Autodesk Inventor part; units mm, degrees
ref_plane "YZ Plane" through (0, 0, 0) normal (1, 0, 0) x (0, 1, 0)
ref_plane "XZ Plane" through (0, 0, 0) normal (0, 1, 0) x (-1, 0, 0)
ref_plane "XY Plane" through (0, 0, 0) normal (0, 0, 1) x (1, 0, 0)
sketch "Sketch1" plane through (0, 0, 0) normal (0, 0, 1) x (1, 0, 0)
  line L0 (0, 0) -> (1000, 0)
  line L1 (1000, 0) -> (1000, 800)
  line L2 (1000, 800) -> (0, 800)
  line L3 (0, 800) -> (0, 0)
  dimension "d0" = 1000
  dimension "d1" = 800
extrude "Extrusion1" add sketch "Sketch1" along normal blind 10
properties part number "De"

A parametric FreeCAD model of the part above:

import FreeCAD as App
import Part
import Sketcher
Q = App.Units.Quantity

doc = App.newDocument("Part")
body = doc.addObject("PartDesign::Body", "Body")

sketch1 = body.newObject("Sketcher::SketchObject", "Sketch")
sketch1.AttachmentSupport = (doc.getObject("XY_Plane"), [""])
sketch1.MapMode = "FlatFace"
sketch1.addGeometry([
    Part.LineSegment(App.Vector(0, 800, 0), App.Vector(0, 0, 0)),
    Part.LineSegment(App.Vector(0, 0, 0), App.Vector(1000, 0, 0)),
    Part.LineSegment(App.Vector(1000, 0, 0), App.Vector(1000, 800, 0)),
    Part.LineSegment(App.Vector(1000, 800, 0), App.Vector(0, 800, 0)),
], False)
sketch1.addConstraint([
    Sketcher.Constraint("Coincident", 0, 2, 1, 1),
    Sketcher.Constraint("Coincident", 1, 2, 2, 1),
    Sketcher.Constraint("Coincident", 2, 2, 3, 1),
    Sketcher.Constraint("Coincident", 3, 2, 0, 1),
    Sketcher.Constraint("Vertical", 0),
    Sketcher.Constraint("Horizontal", 1),
    Sketcher.Constraint("Vertical", 2),
    Sketcher.Constraint("Horizontal", 3),
    Sketcher.Constraint("Coincident", 0, 2, -1, 1),
    Sketcher.Constraint("DistanceX", 1, 1, 1, 2, Q("1000 mm")),
    Sketcher.Constraint("DistanceY", 0, 2, 0, 1, Q("800 mm")),
])
pad1 = body.newObject("PartDesign::Pad", "Pad")
pad1.Profile = sketch1
pad1.Length = 10

doc.recompute()
